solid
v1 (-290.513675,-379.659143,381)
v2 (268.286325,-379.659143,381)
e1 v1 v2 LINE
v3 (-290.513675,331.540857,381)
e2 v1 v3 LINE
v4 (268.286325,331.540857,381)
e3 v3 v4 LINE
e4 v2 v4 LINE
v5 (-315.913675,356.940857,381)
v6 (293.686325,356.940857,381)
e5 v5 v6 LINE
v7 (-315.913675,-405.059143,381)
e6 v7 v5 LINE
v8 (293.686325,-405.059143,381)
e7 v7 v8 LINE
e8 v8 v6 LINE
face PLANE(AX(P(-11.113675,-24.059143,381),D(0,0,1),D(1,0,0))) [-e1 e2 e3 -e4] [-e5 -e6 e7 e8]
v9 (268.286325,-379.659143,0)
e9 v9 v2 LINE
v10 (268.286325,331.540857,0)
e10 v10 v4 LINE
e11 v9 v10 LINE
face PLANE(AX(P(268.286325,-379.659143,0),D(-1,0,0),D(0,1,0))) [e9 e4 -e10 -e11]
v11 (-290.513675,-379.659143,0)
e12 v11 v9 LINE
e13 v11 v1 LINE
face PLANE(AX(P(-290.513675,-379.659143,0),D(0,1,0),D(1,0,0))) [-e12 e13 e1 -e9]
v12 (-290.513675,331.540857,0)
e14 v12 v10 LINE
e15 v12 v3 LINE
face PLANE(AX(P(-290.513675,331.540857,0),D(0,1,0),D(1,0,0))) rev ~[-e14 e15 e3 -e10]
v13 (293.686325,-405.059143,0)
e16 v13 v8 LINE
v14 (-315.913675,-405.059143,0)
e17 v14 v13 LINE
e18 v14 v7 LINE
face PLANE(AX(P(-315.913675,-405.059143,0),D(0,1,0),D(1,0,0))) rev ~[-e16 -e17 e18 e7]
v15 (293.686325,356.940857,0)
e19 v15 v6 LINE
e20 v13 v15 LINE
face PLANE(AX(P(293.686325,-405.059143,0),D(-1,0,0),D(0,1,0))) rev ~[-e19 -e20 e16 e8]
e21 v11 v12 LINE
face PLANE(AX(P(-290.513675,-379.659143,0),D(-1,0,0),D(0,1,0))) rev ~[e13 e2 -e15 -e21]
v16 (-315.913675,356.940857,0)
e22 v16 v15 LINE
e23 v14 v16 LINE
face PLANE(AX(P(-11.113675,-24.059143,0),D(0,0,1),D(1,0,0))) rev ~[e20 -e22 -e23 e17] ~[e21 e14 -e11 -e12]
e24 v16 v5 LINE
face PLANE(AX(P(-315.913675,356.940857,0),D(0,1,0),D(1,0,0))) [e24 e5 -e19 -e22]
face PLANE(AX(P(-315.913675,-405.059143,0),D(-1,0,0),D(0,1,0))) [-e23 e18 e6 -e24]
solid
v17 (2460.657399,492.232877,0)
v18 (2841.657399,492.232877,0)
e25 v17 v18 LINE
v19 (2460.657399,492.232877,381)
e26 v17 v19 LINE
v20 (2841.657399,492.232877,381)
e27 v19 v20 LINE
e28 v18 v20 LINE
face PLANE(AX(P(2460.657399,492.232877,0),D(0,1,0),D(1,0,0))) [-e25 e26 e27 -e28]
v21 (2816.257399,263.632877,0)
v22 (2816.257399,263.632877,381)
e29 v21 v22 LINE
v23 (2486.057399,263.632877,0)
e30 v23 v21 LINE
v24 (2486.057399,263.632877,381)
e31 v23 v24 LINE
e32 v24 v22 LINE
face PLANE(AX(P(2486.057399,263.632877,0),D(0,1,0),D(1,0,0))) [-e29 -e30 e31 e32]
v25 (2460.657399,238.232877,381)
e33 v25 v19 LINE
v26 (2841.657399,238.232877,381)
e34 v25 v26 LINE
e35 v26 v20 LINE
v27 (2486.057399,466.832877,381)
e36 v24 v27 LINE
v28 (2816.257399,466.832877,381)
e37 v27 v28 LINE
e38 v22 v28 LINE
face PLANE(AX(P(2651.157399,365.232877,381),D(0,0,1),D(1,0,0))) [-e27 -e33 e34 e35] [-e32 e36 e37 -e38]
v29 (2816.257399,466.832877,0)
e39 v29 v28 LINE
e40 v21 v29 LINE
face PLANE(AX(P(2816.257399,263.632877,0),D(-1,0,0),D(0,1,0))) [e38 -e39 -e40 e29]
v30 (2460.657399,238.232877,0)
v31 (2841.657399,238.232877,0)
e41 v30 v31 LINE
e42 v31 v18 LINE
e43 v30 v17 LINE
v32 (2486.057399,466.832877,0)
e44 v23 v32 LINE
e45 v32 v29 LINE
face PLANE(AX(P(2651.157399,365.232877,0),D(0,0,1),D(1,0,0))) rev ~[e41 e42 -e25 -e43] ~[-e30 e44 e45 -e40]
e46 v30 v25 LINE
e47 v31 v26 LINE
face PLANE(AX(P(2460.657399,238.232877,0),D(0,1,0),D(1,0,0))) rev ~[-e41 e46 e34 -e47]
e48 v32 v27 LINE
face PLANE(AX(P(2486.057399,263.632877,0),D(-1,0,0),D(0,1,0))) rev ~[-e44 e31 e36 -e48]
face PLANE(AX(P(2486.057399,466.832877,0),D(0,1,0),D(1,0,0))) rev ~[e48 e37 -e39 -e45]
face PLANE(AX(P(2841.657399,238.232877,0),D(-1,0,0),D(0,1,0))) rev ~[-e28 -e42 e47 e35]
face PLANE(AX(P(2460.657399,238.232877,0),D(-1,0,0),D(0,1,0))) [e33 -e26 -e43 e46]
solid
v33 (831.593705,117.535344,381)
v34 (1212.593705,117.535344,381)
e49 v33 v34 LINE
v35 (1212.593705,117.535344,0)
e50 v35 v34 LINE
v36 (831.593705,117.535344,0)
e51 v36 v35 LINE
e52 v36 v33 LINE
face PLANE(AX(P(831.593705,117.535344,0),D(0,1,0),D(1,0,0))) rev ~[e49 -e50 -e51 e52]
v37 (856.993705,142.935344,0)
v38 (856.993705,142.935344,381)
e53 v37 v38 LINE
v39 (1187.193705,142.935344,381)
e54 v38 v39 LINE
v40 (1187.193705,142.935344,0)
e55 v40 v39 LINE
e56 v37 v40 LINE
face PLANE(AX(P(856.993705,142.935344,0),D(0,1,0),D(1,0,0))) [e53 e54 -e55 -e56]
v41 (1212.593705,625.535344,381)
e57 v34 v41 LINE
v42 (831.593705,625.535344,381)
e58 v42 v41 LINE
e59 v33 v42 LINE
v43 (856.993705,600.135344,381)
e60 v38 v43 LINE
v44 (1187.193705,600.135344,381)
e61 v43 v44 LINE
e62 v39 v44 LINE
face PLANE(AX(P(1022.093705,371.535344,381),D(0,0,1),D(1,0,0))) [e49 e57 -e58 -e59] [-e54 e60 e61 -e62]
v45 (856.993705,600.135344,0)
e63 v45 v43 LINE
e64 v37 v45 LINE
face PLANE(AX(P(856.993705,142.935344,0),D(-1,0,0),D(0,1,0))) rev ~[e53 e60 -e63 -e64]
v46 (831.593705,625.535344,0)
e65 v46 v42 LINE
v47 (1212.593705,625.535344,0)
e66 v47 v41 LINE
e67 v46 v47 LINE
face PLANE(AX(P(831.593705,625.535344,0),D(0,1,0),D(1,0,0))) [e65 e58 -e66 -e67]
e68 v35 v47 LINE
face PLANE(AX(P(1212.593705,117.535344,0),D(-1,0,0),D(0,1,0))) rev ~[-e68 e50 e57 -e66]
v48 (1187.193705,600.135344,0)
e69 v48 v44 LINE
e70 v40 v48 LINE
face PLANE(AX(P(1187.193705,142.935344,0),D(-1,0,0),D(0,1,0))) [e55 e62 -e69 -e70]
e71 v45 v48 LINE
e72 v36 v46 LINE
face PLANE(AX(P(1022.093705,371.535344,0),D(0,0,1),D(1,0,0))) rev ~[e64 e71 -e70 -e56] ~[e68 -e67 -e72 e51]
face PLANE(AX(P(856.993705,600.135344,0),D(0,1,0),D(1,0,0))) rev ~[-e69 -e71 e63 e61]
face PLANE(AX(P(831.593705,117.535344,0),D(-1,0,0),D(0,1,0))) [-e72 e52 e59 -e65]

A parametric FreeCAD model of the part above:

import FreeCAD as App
import Part
import Sketcher
Q = App.Units.Quantity

doc = App.newDocument("Part")
body = doc.addObject("PartDesign::Body", "Body")

# Sketch on XY plane
sketch1 = body.newObject("Sketcher::SketchObject", "Sketch")
sketch1.AttachmentSupport = (doc.getObject("XY_Plane"), [""])
sketch1.MapMode = "FlatFace"
sketch1.addGeometry([
    Part.LineSegment(App.Vector(-315.913675, 356.940857, 0), App.Vector(-315.913675, -405.059143, 0)),  # 0
    Part.LineSegment(App.Vector(-315.913675, -405.059143, 0), App.Vector(293.686325, -405.059143, 0)),  # 1
    Part.LineSegment(App.Vector(293.686325, -405.059143, 0), App.Vector(293.686325, 356.940857, 0)),  # 2
    Part.LineSegment(App.Vector(293.686325, 356.940857, 0), App.Vector(-315.913675, 356.940857, 0)),  # 3
    Part.LineSegment(App.Vector(268.286325, -379.659143, 0), App.Vector(-290.513675, -379.659143, 0)),  # 4
    Part.LineSegment(App.Vector(-290.513675, -379.659143, 0), App.Vector(-290.513675, 331.540857, 0)),  # 5
    Part.LineSegment(App.Vector(-290.513675, 331.540857, 0), App.Vector(268.286325, 331.540857, 0)),  # 6
    Part.LineSegment(App.Vector(268.286325, 331.540857, 0), App.Vector(268.286325, -379.659143, 0)),  # 7
], False)
sketch1.addConstraint([
    Sketcher.Constraint("Coincident", 0, 2, 1, 1),
    Sketcher.Constraint("Coincident", 1, 2, 2, 1),
    Sketcher.Constraint("Coincident", 2, 2, 3, 1),
    Sketcher.Constraint("Coincident", 3, 2, 0, 1),
    Sketcher.Constraint("Coincident", 4, 2, 5, 1),
    Sketcher.Constraint("Coincident", 5, 2, 6, 1),
    Sketcher.Constraint("Coincident", 6, 2, 7, 1),
    Sketcher.Constraint("Coincident", 7, 2, 4, 1),
    Sketcher.Constraint("Vertical", 0),
    Sketcher.Constraint("Horizontal", 1),
    Sketcher.Constraint("Vertical", 2),
    Sketcher.Constraint("Horizontal", 3),
    Sketcher.Constraint("Horizontal", 4),
    Sketcher.Constraint("Vertical", 5),
    Sketcher.Constraint("Horizontal", 6),
    Sketcher.Constraint("Vertical", 7),
    Sketcher.Constraint("DistanceX", 1, 1, 1, 2, Q("24 in")),
    Sketcher.Constraint("DistanceX", 4, 2, 4, 1, Q("22 in")),
    Sketcher.Constraint("DistanceY", 0, 2, 0, 1, Q("30 in")),
    Sketcher.Constraint("DistanceY", 5, 1, 5, 2, Q("28 in")),
    Sketcher.Constraint("DistanceX", 0, 2, 4, 2, Q("1 in")),
    Sketcher.Constraint("DistanceY", 0, 2, 4, 2, Q("1 in")),
    Sketcher.Constraint("DistanceX", 0, 2, -1, 1, Q("315.913675 mm")),
    Sketcher.Constraint("DistanceY", 0, 2, -1, 1, Q("405.059143 mm")),
])
pad1 = body.newObject("PartDesign::Pad", "Pad")
pad1.Profile = sketch1
pad1.Length = Q("15 in")
body2 = doc.addObject("PartDesign::Body", "Body001")

# Sketch on XY plane
sketch2 = body2.newObject("Sketcher::SketchObject", "Sketch001")
sketch2.AttachmentSupport = (doc.getObject("XY_Plane001"), [""])
sketch2.MapMode = "FlatFace"
sketch2.addGeometry([
    Part.LineSegment(App.Vector(831.593705, 625.535344, 0), App.Vector(831.593705, 117.535344, 0)),  # 0
    Part.LineSegment(App.Vector(831.593705, 117.535344, 0), App.Vector(1212.593705, 117.535344, 0)),  # 1
    Part.LineSegment(App.Vector(1212.593705, 117.535344, 0), App.Vector(1212.593705, 625.535344, 0)),  # 2
    Part.LineSegment(App.Vector(1212.593705, 625.535344, 0), App.Vector(831.593705, 625.535344, 0)),  # 3
    Part.LineSegment(App.Vector(1187.193705, 142.935344, 0), App.Vector(856.993705, 142.935344, 0)),  # 4
    Part.LineSegment(App.Vector(856.993705, 142.935344, 0), App.Vector(856.993705, 600.135344, 0)),  # 5
    Part.LineSegment(App.Vector(856.993705, 600.135344, 0), App.Vector(1187.193705, 600.135344, 0)),  # 6
    Part.LineSegment(App.Vector(1187.193705, 600.135344, 0), App.Vector(1187.193705, 142.935344, 0)),  # 7
], False)
sketch2.addConstraint([
    Sketcher.Constraint("Coincident", 0, 2, 1, 1),
    Sketcher.Constraint("Coincident", 1, 2, 2, 1),
    Sketcher.Constraint("Coincident", 2, 2, 3, 1),
    Sketcher.Constraint("Coincident", 3, 2, 0, 1),
    Sketcher.Constraint("Coincident", 4, 2, 5, 1),
    Sketcher.Constraint("Coincident", 5, 2, 6, 1),
    Sketcher.Constraint("Coincident", 6, 2, 7, 1),
    Sketcher.Constraint("Coincident", 7, 2, 4, 1),
    Sketcher.Constraint("Vertical", 0),
    Sketcher.Constraint("Horizontal", 1),
    Sketcher.Constraint("Vertical", 2),
    Sketcher.Constraint("Horizontal", 3),
    Sketcher.Constraint("Horizontal", 4),
    Sketcher.Constraint("Vertical", 5),
    Sketcher.Constraint("Horizontal", 6),
    Sketcher.Constraint("Vertical", 7),
    Sketcher.Constraint("DistanceX", 1, 1, 1, 2, Q("15 in")),
    Sketcher.Constraint("DistanceX", 4, 2, 4, 1, Q("13 in")),
    Sketcher.Constraint("DistanceY", 0, 2, 0, 1, Q("20 in")),
    Sketcher.Constraint("DistanceY", 5, 1, 5, 2, Q("18 in")),
    Sketcher.Constraint("DistanceX", 0, 2, 4, 2, Q("1 in")),
    Sketcher.Constraint("DistanceY", 0, 2, 4, 2, Q("1 in")),
    Sketcher.Constraint("DistanceX", -1, 1, 0, 2, Q("831.593705 mm")),
    Sketcher.Constraint("DistanceY", -1, 1, 0, 2, Q("117.535344 mm")),
])
pad2 = body2.newObject("PartDesign::Pad", "Pad001")
pad2.Profile = sketch2
pad2.Length = Q("15 in")
body3 = doc.addObject("PartDesign::Body", "Body002")

# Sketch on XY plane
sketch3 = body3.newObject("Sketcher::SketchObject", "Sketch002")
sketch3.AttachmentSupport = (doc.getObject("XY_Plane002"), [""])
sketch3.MapMode = "FlatFace"
sketch3.addGeometry([
    Part.LineSegment(App.Vector(2460.657399, 492.232877, 0), App.Vector(2460.657399, 238.232877, 0)),  # 0
    Part.LineSegment(App.Vector(2460.657399, 238.232877, 0), App.Vector(2841.657399, 238.232877, 0)),  # 1
    Part.LineSegment(App.Vector(2841.657399, 238.232877, 0), App.Vector(2841.657399, 492.232877, 0)),  # 2
    Part.LineSegment(App.Vector(2841.657399, 492.232877, 0), App.Vector(2460.657399, 492.232877, 0)),  # 3
    Part.LineSegment(App.Vector(2816.257399, 263.632877, 0), App.Vector(2486.057399, 263.632877, 0)),  # 4
    Part.LineSegment(App.Vector(2486.057399, 263.632877, 0), App.Vector(2486.057399, 466.832877, 0)),  # 5
    Part.LineSegment(App.Vector(2486.057399, 466.832877, 0), App.Vector(2816.257399, 466.832877, 0)),  # 6
    Part.LineSegment(App.Vector(2816.257399, 466.832877, 0), App.Vector(2816.257399, 263.632877, 0)),  # 7
], False)
sketch3.addConstraint([
    Sketcher.Constraint("Coincident", 0, 2, 1, 1),
    Sketcher.Constraint("Coincident", 1, 2, 2, 1),
    Sketcher.Constraint("Coincident", 2, 2, 3, 1),
    Sketcher.Constraint("Coincident", 3, 2, 0, 1),
    Sketcher.Constraint("Coincident", 4, 2, 5, 1),
    Sketcher.Constraint("Coincident", 5, 2, 6, 1),
    Sketcher.Constraint("Coincident", 6, 2, 7, 1),
    Sketcher.Constraint("Coincident", 7, 2, 4, 1),
    Sketcher.Constraint("Vertical", 0),
    Sketcher.Constraint("Horizontal", 1),
    Sketcher.Constraint("Vertical", 2),
    Sketcher.Constraint("Horizontal", 3),
    Sketcher.Constraint("Horizontal", 4),
    Sketcher.Constraint("Vertical", 5),
    Sketcher.Constraint("Horizontal", 6),
    Sketcher.Constraint("Vertical", 7),
    Sketcher.Constraint("DistanceX", 1, 1, 1, 2, Q("15 in")),
    Sketcher.Constraint("DistanceX", 4, 2, 4, 1, Q("13 in")),
    Sketcher.Constraint("DistanceY", 0, 2, 0, 1, Q("10 in")),
    Sketcher.Constraint("DistanceY", 5, 1, 5, 2, Q("8 in")),
    Sketcher.Constraint("DistanceX", 0, 2, 4, 2, Q("1 in")),
    Sketcher.Constraint("DistanceY", 0, 2, 4, 2, Q("1 in")),
    Sketcher.Constraint("DistanceX", -1, 1, 0, 2, Q("2460.657399 mm")),
    Sketcher.Constraint("DistanceY", -1, 1, 0, 2, Q("238.232877 mm")),
])
pad3 = body3.newObject("PartDesign::Pad", "Pad002")
pad3.Profile = sketch3
pad3.Length = Q("15 in")

doc.recompute()
